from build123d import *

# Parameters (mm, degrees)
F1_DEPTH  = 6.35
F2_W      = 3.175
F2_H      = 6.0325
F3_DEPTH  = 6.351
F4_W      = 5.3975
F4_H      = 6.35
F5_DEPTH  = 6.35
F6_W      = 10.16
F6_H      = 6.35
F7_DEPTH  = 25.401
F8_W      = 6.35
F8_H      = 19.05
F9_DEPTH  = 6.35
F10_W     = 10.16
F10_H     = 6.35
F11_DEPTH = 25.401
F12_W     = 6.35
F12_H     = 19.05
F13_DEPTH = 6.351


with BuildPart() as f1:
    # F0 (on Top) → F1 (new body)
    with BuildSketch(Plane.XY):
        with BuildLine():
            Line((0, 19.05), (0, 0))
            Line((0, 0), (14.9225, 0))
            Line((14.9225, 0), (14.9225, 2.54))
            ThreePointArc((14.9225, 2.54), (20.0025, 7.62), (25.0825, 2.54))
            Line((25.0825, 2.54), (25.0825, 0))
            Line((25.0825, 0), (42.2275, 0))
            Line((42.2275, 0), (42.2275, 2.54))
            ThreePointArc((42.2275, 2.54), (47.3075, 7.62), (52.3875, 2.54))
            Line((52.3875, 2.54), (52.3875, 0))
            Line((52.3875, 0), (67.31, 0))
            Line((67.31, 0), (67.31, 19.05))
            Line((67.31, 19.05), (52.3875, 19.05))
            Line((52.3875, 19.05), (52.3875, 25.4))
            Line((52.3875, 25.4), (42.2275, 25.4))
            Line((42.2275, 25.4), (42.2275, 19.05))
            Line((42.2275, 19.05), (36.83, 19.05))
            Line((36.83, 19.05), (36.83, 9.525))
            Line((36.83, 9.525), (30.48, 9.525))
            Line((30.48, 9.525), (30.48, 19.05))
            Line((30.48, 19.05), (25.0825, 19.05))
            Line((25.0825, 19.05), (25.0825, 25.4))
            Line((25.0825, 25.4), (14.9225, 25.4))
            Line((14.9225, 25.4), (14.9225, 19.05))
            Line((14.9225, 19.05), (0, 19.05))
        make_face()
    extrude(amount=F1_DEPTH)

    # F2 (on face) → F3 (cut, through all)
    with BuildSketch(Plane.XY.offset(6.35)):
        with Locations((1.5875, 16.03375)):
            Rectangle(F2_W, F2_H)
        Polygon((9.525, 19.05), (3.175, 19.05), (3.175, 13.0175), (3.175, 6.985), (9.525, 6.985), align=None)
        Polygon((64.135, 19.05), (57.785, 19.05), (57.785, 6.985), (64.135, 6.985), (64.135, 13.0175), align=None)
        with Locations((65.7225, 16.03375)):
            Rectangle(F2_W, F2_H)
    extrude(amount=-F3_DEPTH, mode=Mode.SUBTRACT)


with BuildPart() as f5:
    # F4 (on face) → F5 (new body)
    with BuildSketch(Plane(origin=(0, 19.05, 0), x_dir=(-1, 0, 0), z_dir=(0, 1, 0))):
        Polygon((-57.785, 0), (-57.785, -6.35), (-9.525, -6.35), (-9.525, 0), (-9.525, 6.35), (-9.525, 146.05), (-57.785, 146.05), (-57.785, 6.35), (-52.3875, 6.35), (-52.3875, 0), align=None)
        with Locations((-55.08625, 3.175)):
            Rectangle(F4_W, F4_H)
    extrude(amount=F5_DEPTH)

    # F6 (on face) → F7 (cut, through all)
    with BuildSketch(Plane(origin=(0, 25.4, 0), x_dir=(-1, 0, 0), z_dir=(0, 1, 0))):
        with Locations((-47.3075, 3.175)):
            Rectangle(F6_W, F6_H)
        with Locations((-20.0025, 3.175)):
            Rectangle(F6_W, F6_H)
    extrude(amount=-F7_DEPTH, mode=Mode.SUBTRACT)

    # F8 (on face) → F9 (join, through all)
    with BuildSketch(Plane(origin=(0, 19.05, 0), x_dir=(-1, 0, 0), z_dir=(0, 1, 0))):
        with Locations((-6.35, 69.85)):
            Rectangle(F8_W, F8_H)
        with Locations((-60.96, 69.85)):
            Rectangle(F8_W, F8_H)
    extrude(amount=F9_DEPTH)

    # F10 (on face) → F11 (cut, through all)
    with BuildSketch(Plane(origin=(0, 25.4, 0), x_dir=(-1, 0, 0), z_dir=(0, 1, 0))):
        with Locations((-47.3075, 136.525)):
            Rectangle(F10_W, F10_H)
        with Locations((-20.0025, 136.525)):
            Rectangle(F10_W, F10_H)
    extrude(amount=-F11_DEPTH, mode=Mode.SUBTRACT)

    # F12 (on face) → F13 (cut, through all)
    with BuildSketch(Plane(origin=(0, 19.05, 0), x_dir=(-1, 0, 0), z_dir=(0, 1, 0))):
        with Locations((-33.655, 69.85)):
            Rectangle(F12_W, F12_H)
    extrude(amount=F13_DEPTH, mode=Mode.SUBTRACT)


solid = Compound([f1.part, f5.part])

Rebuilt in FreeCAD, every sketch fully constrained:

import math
import FreeCAD as App
import Part
import Sketcher

V = App.Vector
Q = App.Units.Quantity


def add_polygon(sketch, points):
    """Adds a closed chain of lines whose ends are joined by coincident constraints."""
    first, n = sketch.GeometryCount, len(points)
    for a, b in zip(points, points[1:] + points[:1]):
        sketch.addGeometry(Part.LineSegment(App.Vector(*a, 0), App.Vector(*b, 0)), False)
    for i in range(n):
        sketch.addConstraint(Sketcher.Constraint("Coincident", first + i, 2, first + (i + 1) % n, 1))

doc = App.newDocument("Part")
body = doc.addObject("PartDesign::Body", "Body")

sketch1 = body.newObject("Sketcher::SketchObject", "Sketch")
sketch1.AttachmentSupport = (doc.getObject("XY_Plane"), [""])
sketch1.MapMode = "FlatFace"
sketch1.addGeometry([
    Part.LineSegment(V(0, 19.1, 0), V(0, 0, 0)),
    Part.LineSegment(V(0, 0, 0), V(14.9, 0, 0)),
    Part.LineSegment(V(14.9, 0, 0), V(14.9, 2.5, 0)),
    Part.ArcOfCircle(Part.Circle(V(20, 2.5, 0), V(0, 0, 1), 5.1), math.radians(0), math.radians(180)),
    Part.LineSegment(V(25.1, 2.5, 0), V(25.1, 0, 0)),
    Part.LineSegment(V(25.1, 0, 0), V(42.2, 0, 0)),
    Part.LineSegment(V(42.2, 0, 0), V(42.2, 2.5, 0)),
    Part.ArcOfCircle(Part.Circle(V(47.3, 2.5, 0), V(0, 0, 1), 5.1), math.radians(0), math.radians(180)),
    Part.LineSegment(V(52.4, 2.5, 0), V(52.4, 0, 0)),
    Part.LineSegment(V(52.4, 0, 0), V(67.3, 0, 0)),
    Part.LineSegment(V(67.3, 0, 0), V(67.3, 19.1, 0)),
    Part.LineSegment(V(67.3, 19.1, 0), V(52.4, 19.1, 0)),
    Part.LineSegment(V(52.4, 19.1, 0), V(52.4, 25.4, 0)),
    Part.LineSegment(V(52.4, 25.4, 0), V(42.2, 25.4, 0)),
    Part.LineSegment(V(42.2, 25.4, 0), V(42.2, 19.1, 0)),
    Part.LineSegment(V(42.2, 19.1, 0), V(36.8, 19.1, 0)),
    Part.LineSegment(V(36.8, 19.1, 0), V(36.8, 9.5, 0)),
    Part.LineSegment(V(36.8, 9.5, 0), V(30.5, 9.5, 0)),
    Part.LineSegment(V(30.5, 9.5, 0), V(30.5, 19.1, 0)),
    Part.LineSegment(V(30.5, 19.1, 0), V(25.1, 19.1, 0)),
    Part.LineSegment(V(25.1, 19.1, 0), V(25.1, 25.4, 0)),
    Part.LineSegment(V(25.1, 25.4, 0), V(14.9, 25.4, 0)),
    Part.LineSegment(V(14.9, 25.4, 0), V(14.9, 19.1, 0)),
    Part.LineSegment(V(14.9, 19.1, 0), V(0, 19.1, 0)),
], False)
sketch1.addConstraint([
    Sketcher.Constraint("Coincident", 0, 2, 1, 1),
    Sketcher.Constraint("Coincident", 1, 2, 2, 1),
    Sketcher.Constraint("Tangent", 2, 2, 3, 2),
    Sketcher.Constraint("Tangent", 3, 1, 4, 1),
    Sketcher.Constraint("Coincident", 4, 2, 5, 1),
    Sketcher.Constraint("Coincident", 5, 2, 6, 1),
    Sketcher.Constraint("Tangent", 6, 2, 7, 2),
    Sketcher.Constraint("Tangent", 7, 1, 8, 1),
    Sketcher.Constraint("Coincident", 8, 2, 9, 1),
    Sketcher.Constraint("Coincident", 9, 2, 10, 1),
    Sketcher.Constraint("Coincident", 10, 2, 11, 1),
    Sketcher.Constraint("Coincident", 11, 2, 12, 1),
    Sketcher.Constraint("Coincident", 12, 2, 13, 1),
    Sketcher.Constraint("Coincident", 13, 2, 14, 1),
    Sketcher.Constraint("Coincident", 14, 2, 15, 1),
    Sketcher.Constraint("Coincident", 15, 2, 16, 1),
    Sketcher.Constraint("Coincident", 16, 2, 17, 1),
    Sketcher.Constraint("Coincident", 17, 2, 18, 1),
    Sketcher.Constraint("Coincident", 18, 2, 19, 1),
    Sketcher.Constraint("Coincident", 19, 2, 20, 1),
    Sketcher.Constraint("Coincident", 20, 2, 21, 1),
    Sketcher.Constraint("Coincident", 21, 2, 22, 1),
    Sketcher.Constraint("Coincident", 22, 2, 23, 1),
    Sketcher.Constraint("Coincident", 23, 2, 0, 1),
    Sketcher.Constraint("Vertical", 0),
    Sketcher.Constraint("Horizontal", 1),
    Sketcher.Constraint("Vertical", 2),
    Sketcher.Constraint("Vertical", 4),
    Sketcher.Constraint("Horizontal", 5),
    Sketcher.Constraint("Vertical", 6),
    Sketcher.Constraint("Vertical", 8),
    Sketcher.Constraint("Horizontal", 9),
    Sketcher.Constraint("Vertical", 10),
    Sketcher.Constraint("Horizontal", 11),
    Sketcher.Constraint("Vertical", 12),
    Sketcher.Constraint("Horizontal", 13),
    Sketcher.Constraint("Vertical", 14),
    Sketcher.Constraint("Horizontal", 15),
    Sketcher.Constraint("Vertical", 16),
    Sketcher.Constraint("Horizontal", 17),
    Sketcher.Constraint("Vertical", 18),
    Sketcher.Constraint("Horizontal", 19),
    Sketcher.Constraint("Vertical", 20),
    Sketcher.Constraint("Horizontal", 21),
    Sketcher.Constraint("Vertical", 22),
    Sketcher.Constraint("Horizontal", 23),
    Sketcher.Constraint("Coincident", 0, 2, -1, 1),
    Sketcher.Constraint("Equal", 3, 7),
    Sketcher.Constraint("PointOnObject", 4, 2, -1),
    Sketcher.Constraint("PointOnObject", 8, 2, -1),
    Sketcher.Constraint("Horizontal", 3, 3, 7, 3),
    Sketcher.Constraint("Horizontal", 11, 2, 14, 2),
    Sketcher.Constraint("Horizontal", 15, 2, 18, 2),
    Sketcher.Constraint("Horizontal", 13, 2, 20, 2),
    Sketcher.Constraint("Horizontal", 19, 2, 22, 2),
    Sketcher.Constraint("Vertical", 8, 2, 11, 2),
    Sketcher.Constraint("Vertical", 6, 2, 13, 2),
    Sketcher.Constraint("Vertical", 4, 2, 19, 2),
    Sketcher.Constraint("Vertical", 2, 2, 21, 2),
    Sketcher.Constraint("Equal", 1, 9),
    Sketcher.Constraint("Equal", 15, 19),
    Sketcher.Constraint("Equal", 17, 12),
    Sketcher.Constraint("Radius", 3, Q("0.2 in")),
    Sketcher.Constraint("DistanceY", 2, 1, 2, 2, Q("0.1 in")),
    Sketcher.Constraint("DistanceY", -1, 1, 12, 2, Q("1 in")),
    Sketcher.Constraint("DistanceX", 17, 2, 17, 1, Q("0.25 in")),
    Sketcher.Constraint("DistanceX", -1, 1, 17, 2, Q("1.2 in")),
    Sketcher.Constraint("DistanceX", 5, 1, 5, 2, Q("0.675 in")),
    Sketcher.Constraint("DistanceY", 16, 2, 16, 1, Q("0.375 in")),
])
pad1 = body.newObject("PartDesign::Pad", "Pad")
pad1.Profile = sketch1
pad1.Length = Q("0.25 in")

sketch2 = body.newObject("Sketcher::SketchObject", "Sketch001")
sketch2.AttachmentSupport = (doc.getObject("XY_Plane"), [""])
sketch2.MapMode = "FlatFace"
sketch2.AttachmentOffset = App.Placement(V(0, 0, 0.25 * 25.4), App.Rotation())
add_polygon(sketch2, [(0, 19.1), (0, 13), (3.2, 13), (3.2, 7), (9.5, 7), (9.5, 19.1)])
add_polygon(sketch2, [(57.8, 19.1), (57.8, 7), (64.1, 7), (64.1, 13), (67.3, 13), (67.3, 19.1)])
sketch2.addConstraint([
    Sketcher.Constraint("Vertical", 0),
    Sketcher.Constraint("Horizontal", 1),
    Sketcher.Constraint("Vertical", 2),
    Sketcher.Constraint("Horizontal", 3),
    Sketcher.Constraint("Vertical", 4),
    Sketcher.Constraint("Horizontal", 5),
    Sketcher.Constraint("Vertical", 6),
    Sketcher.Constraint("Horizontal", 7),
    Sketcher.Constraint("Vertical", 8),
    Sketcher.Constraint("Horizontal", 9),
    Sketcher.Constraint("Vertical", 10),
    Sketcher.Constraint("Horizontal", 11),
    Sketcher.Constraint("PointOnObject", 0, 2, -2),
    Sketcher.Constraint("Horizontal", 3, 2, 6, 2),
    Sketcher.Constraint("Horizontal", 1, 2, 8, 2),
    Sketcher.Constraint("Horizontal", 5, 2, 10, 2),
    Sketcher.Constraint("Equal", 3, 7),
    Sketcher.Constraint("Equal", 1, 9),
    Sketcher.Constraint("Equal", 0, 2),
    Sketcher.Constraint("DistanceX", 3, 1, 3, 2, Q("0.25 in")),
    Sketcher.Constraint("DistanceX", 3, 2, 6, 2, Q("1.9 in")),
    Sketcher.Constraint("DistanceX", 1, 1, 1, 2, Q("0.125 in")),
    Sketcher.Constraint("DistanceY", 4, 1, 4, 2, Q("0.475 in")),
    Sketcher.Constraint("DistanceY", -1, 1, 4, 2, Q("0.75 in")),
])
pocket1 = body.newObject("PartDesign::Pocket", "Pocket")
pocket1.Profile = sketch2
pocket1.Type = "ThroughAll"
body2 = doc.addObject("PartDesign::Body", "Body001")

sketch3 = body2.newObject("Sketcher::SketchObject", "Sketch002")
sketch3.AttachmentSupport = (doc.getObject("XZ_Plane001"), [""])
sketch3.MapMode = "FlatFace"
sketch3.AttachmentOffset = App.Placement(V(0, 0, -0.75 * 25.4), App.Rotation())
add_polygon(sketch3, [(58, -6), (10, -6), (10, 146), (58, 146)])
sketch3.addConstraint([
    Sketcher.Constraint("Horizontal", 0),
    Sketcher.Constraint("Vertical", 1),
    Sketcher.Constraint("Horizontal", 2),
    Sketcher.Constraint("Vertical", 3),
    Sketcher.Constraint("DistanceY", 1, 1, 1, 2, Q("6 in")),
    Sketcher.Constraint("DistanceX", 0, 2, 0, 1, Q("1.9 in")),
    Sketcher.Constraint("DistanceY", 0, 2, -1, 1, Q("0.25 in")),
    Sketcher.Constraint("DistanceX", -1, 1, 0, 2, Q("0.375 in")),
])
pad2 = body2.newObject("PartDesign::Pad", "Pad001")
pad2.Profile = sketch3
pad2.Length = Q("0.25 in")
pad2.Reversed = True

sketch4 = body2.newObject("Sketcher::SketchObject", "Sketch003")
sketch4.AttachmentSupport = (doc.getObject("XZ_Plane001"), [""])
sketch4.MapMode = "FlatFace"
sketch4.AttachmentOffset = App.Placement(V(0, 0, -1 * 25.4), App.Rotation())
add_polygon(sketch4, [(52, 6), (52, 0), (42, 0), (42, 6)])
add_polygon(sketch4, [(25, 6), (25, 0), (15, 0), (15, 6)])
sketch4.addConstraint([
    Sketcher.Constraint("Vertical", 0),
    Sketcher.Constraint("Horizontal", 1),
    Sketcher.Constraint("Vertical", 2),
    Sketcher.Constraint("Horizontal", 3),
    Sketcher.Constraint("Vertical", 4),
    Sketcher.Constraint("Horizontal", 5),
    Sketcher.Constraint("Vertical", 6),
    Sketcher.Constraint("Horizontal", 7),
    Sketcher.Constraint("PointOnObject", 0, 2, -1),
    Sketcher.Constraint("PointOnObject", 4, 2, -1),
    Sketcher.Constraint("Horizontal", 3, 2, 6, 2),
    Sketcher.Constraint("Equal", 3, 5),
    Sketcher.Constraint("DistanceX", 1, 2, 1, 1, Q("0.4 in")),
    Sketcher.Constraint("DistanceY", 0, 2, 0, 1, Q("0.25 in")),
    Sketcher.Constraint("DistanceX", -1, 1, 0, 2, Q("2.0625 in")),
    Sketcher.Constraint("DistanceX", 4, 2, 1, 2, Q("0.675 in")),
])
pocket2 = body2.newObject("PartDesign::Pocket", "Pocket001")
pocket2.Profile = sketch4
pocket2.Type = "ThroughAll"
pocket2.Reversed = True

sketch5 = body2.newObject("Sketcher::SketchObject", "Sketch004")
sketch5.AttachmentSupport = (doc.getObject("XZ_Plane001"), [""])
sketch5.MapMode = "FlatFace"
sketch5.AttachmentOffset = App.Placement(V(0, 0, -0.75 * 25.4), App.Rotation())
add_polygon(sketch5, [(10, 79), (10, 60), (3, 60), (3, 79)])
add_polygon(sketch5, [(64, 79), (64, 60), (58, 60), (58, 79)])
sketch5.addConstraint([
    Sketcher.Constraint("Vertical", 0),
    Sketcher.Constraint("Horizontal", 1),
    Sketcher.Constraint("Vertical", 2),
    Sketcher.Constraint("Horizontal", 3),
    Sketcher.Constraint("Vertical", 4),
    Sketcher.Constraint("Horizontal", 5),
    Sketcher.Constraint("Vertical", 6),
    Sketcher.Constraint("Horizontal", 7),
    Sketcher.Constraint("Horizontal", 1, 2, 4, 2),
    Sketcher.Constraint("Horizontal", 3, 2, 6, 2),
    Sketcher.Constraint("Equal", 3, 5),
    Sketcher.Constraint("DistanceX", 1, 2, 1, 1, Q("0.25 in")),
    Sketcher.Constraint("DistanceY", 0, 2, 0, 1, Q("0.75 in")),
    Sketcher.Constraint("DistanceX", 1, 2, 4, 2, Q("2.4 in")),
    Sketcher.Constraint("DistanceX", -1, 1, 0, 2, Q("0.375 in")),
    Sketcher.Constraint("DistanceY", -1, 1, 0, 2, Q("2.375 in")),
])
pad3 = body2.newObject("PartDesign::Pad", "Pad002")
pad3.Profile = sketch5
pad3.Type = "UpToLast"
pad3.Reversed = True

sketch6 = body2.newObject("Sketcher::SketchObject", "Sketch005")
sketch6.AttachmentSupport = (doc.getObject("XZ_Plane001"), [""])
sketch6.MapMode = "FlatFace"
sketch6.AttachmentOffset = App.Placement(V(0, 0, -1 * 25.4), App.Rotation())
add_polygon(sketch6, [(52, 140), (52, 133), (42, 133), (42, 140)])
add_polygon(sketch6, [(25, 140), (25, 133), (15, 133), (15, 140)])
sketch6.addConstraint([
    Sketcher.Constraint("Vertical", 0),
    Sketcher.Constraint("Horizontal", 1),
    Sketcher.Constraint("Vertical", 2),
    Sketcher.Constraint("Horizontal", 3),
    Sketcher.Constraint("Vertical", 4),
    Sketcher.Constraint("Horizontal", 5),
    Sketcher.Constraint("Vertical", 6),
    Sketcher.Constraint("Horizontal", 7),
    Sketcher.Constraint("Horizontal", 1, 2, 4, 2),
    Sketcher.Constraint("Horizontal", 3, 2, 6, 2),
    Sketcher.Constraint("Equal", 3, 5),
    Sketcher.Constraint("DistanceX", 1, 2, 1, 1, Q("0.4 in")),
    Sketcher.Constraint("DistanceY", 0, 2, 0, 1, Q("0.25 in")),
    Sketcher.Constraint("DistanceY", -1, 1, 2, 2, Q("5.5 in")),
    Sketcher.Constraint("DistanceX", -1, 1, 0, 2, Q("2.0625 in")),
    Sketcher.Constraint("DistanceX", 4, 2, 1, 2, Q("0.675 in")),
])
pocket3 = body2.newObject("PartDesign::Pocket", "Pocket002")
pocket3.Profile = sketch6
pocket3.Type = "ThroughAll"
pocket3.Reversed = True

sketch7 = body2.newObject("Sketcher::SketchObject", "Sketch006")
sketch7.AttachmentSupport = (doc.getObject("XZ_Plane001"), [""])
sketch7.MapMode = "FlatFace"
sketch7.AttachmentOffset = App.Placement(V(0, 0, -0.75 * 25.4), App.Rotation())
add_polygon(sketch7, [(37, 79), (37, 60), (30, 60), (30, 79)])
sketch7.addConstraint([
    Sketcher.Constraint("Vertical", 0),
    Sketcher.Constraint("Horizontal", 1),
    Sketcher.Constraint("Vertical", 2),
    Sketcher.Constraint("Horizontal", 3),
    Sketcher.Constraint("DistanceX", 1, 2, 1, 1, Q("0.25 in")),
    Sketcher.Constraint("DistanceY", 0, 2, 0, 1, Q("0.75 in")),
    Sketcher.Constraint("DistanceX", -1, 1, 1, 2, Q("1.2 in")),
    Sketcher.Constraint("DistanceY", -1, 1, 0, 2, Q("2.375 in")),
])
pocket4 = body2.newObject("PartDesign::Pocket", "Pocket003")
pocket4.Profile = sketch7
pocket4.Type = "ThroughAll"

doc.recompute()
